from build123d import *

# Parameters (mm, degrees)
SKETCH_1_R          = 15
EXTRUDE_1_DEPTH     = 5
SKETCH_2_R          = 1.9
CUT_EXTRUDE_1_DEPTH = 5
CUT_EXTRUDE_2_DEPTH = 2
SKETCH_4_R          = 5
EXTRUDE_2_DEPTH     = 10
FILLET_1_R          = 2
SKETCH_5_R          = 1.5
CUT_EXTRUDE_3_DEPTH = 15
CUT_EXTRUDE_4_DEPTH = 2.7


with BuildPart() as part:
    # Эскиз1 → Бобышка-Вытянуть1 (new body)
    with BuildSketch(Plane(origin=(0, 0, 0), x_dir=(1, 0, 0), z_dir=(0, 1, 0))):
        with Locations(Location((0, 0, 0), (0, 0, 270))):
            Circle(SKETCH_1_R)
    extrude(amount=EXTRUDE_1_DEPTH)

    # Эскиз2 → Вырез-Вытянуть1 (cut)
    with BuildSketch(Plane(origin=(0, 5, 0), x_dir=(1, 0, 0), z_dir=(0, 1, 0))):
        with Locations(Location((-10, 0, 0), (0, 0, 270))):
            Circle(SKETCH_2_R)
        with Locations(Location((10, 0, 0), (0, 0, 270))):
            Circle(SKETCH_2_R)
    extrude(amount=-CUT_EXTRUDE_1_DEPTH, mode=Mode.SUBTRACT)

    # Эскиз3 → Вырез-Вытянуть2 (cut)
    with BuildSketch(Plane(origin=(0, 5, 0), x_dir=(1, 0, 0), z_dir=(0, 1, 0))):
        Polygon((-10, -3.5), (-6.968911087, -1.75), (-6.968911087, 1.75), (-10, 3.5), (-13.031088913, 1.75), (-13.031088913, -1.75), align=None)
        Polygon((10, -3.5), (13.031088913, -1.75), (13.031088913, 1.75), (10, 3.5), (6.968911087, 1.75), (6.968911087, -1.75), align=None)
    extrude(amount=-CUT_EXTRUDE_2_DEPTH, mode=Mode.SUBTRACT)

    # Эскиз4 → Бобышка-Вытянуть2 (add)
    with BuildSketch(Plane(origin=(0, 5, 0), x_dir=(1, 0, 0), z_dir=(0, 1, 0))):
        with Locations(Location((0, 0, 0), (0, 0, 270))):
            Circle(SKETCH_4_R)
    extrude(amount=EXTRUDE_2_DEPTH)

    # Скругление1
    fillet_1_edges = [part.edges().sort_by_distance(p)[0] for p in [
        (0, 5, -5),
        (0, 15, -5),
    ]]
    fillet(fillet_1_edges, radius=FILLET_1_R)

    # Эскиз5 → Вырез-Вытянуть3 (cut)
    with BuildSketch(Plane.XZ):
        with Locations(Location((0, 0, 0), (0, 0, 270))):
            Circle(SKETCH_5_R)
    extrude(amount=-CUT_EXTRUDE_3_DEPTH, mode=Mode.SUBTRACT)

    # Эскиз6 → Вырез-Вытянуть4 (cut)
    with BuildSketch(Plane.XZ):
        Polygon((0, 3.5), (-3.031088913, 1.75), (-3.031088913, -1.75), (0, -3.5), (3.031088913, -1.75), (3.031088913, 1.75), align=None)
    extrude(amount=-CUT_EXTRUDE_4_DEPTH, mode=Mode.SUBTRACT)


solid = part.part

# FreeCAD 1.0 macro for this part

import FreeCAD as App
import Part
import Sketcher
from FreeCAD import Vector
Q = App.Units.Quantity


def edges_at(feature, points):
    """Names of the edges that pass closest to the given points."""
    edges = feature.Shape.Edges
    near = lambda p: min(range(len(edges)), key=lambda i: edges[i].distToShape(Part.Vertex(*p))[0])
    return sorted({f"Edge{near(p) + 1}" for p in points})

doc = App.newDocument("Part")
body = doc.addObject("PartDesign::Body", "Body")

# Sketch on XZ plane
sketch1 = doc.addObject("Sketcher::SketchObject", "Sketch")
body.addObject(sketch1)
sketch1.AttachmentSupport = (doc.XZ_Plane, [""])
sketch1.MapMode = "FlatFace"
sketch1.addGeometry(Part.Circle(Vector(0, 0, 0), Vector(0, 0, 1), 15), False)
sketch1.addConstraint(Sketcher.Constraint("Coincident", 0, 3, -1, 1))
sketch1.addConstraint(Sketcher.Constraint("Diameter", 0, Q("30 mm")))
pad1 = doc.addObject("PartDesign::Pad", "Pad")
body.addObject(pad1)
pad1.Profile = sketch1
pad1.Length = 5
pad1.Reversed = True

# Sketch on XZ plane
sketch2 = doc.addObject("Sketcher::SketchObject", "Sketch001")
body.addObject(sketch2)
sketch2.AttachmentSupport = (doc.XZ_Plane, [""])
sketch2.MapMode = "FlatFace"
sketch2.AttachmentOffset = App.Placement(Vector(0, 0, -5), App.Rotation())
sketch2.addGeometry(Part.Circle(Vector(-10, 0, 0), Vector(0, 0, 1), 1.9), False)
sketch2.addGeometry(Part.Circle(Vector(10, 0, 0), Vector(0, 0, 1), 1.9), False)
sketch2.addConstraint(Sketcher.Constraint("Equal", 0, 1))
sketch2.addConstraint(Sketcher.Constraint("Symmetric", 0, 3, 1, 3, -1, 1))
sketch2.addConstraint(Sketcher.Constraint("PointOnObject", 0, 3, -1))
sketch2.addConstraint(Sketcher.Constraint("Diameter", 0, Q("3.8 mm")))
sketch2.addConstraint(Sketcher.Constraint("DistanceX", 0, 3, -1, 1, Q("10 mm")))
pocket1 = doc.addObject("PartDesign::Pocket", "Pocket")
body.addObject(pocket1)
pocket1.Profile = sketch2
pocket1.Length = 5
pocket1.Reversed = True

# Sketch on XZ plane
sketch3 = doc.addObject("Sketcher::SketchObject", "Sketch002")
body.addObject(sketch3)
sketch3.AttachmentSupport = (doc.XZ_Plane, [""])
sketch3.MapMode = "FlatFace"
sketch3.AttachmentOffset = App.Placement(Vector(0, 0, -5), App.Rotation())
sketch3.addGeometry(Part.LineSegment(Vector(-10, 3.5, 0), Vector(-7, 1.8, 0)), False)
sketch3.addGeometry(Part.LineSegment(Vector(-7, 1.8, 0), Vector(-7, -1.8, 0)), False)
sketch3.addGeometry(Part.LineSegment(Vector(-7, -1.8, 0), Vector(-10, -3.5, 0)), False)
sketch3.addGeometry(Part.LineSegment(Vector(-10, -3.5, 0), Vector(-13, -1.8, 0)), False)
sketch3.addGeometry(Part.LineSegment(Vector(-13, -1.8, 0), Vector(-13, 1.8, 0)), False)
sketch3.addGeometry(Part.LineSegment(Vector(-13, 1.8, 0), Vector(-10, 3.5, 0)), False)
sketch3.addGeometry(Part.LineSegment(Vector(10, 3.5, 0), Vector(13, 1.8, 0)), False)
sketch3.addGeometry(Part.LineSegment(Vector(13, 1.8, 0), Vector(13, -1.8, 0)), False)
sketch3.addGeometry(Part.LineSegment(Vector(13, -1.8, 0), Vector(10, -3.5, 0)), False)
sketch3.addGeometry(Part.LineSegment(Vector(10, -3.5, 0), Vector(7, -1.8, 0)), False)
sketch3.addGeometry(Part.LineSegment(Vector(7, -1.8, 0), Vector(7, 1.8, 0)), False)
sketch3.addGeometry(Part.LineSegment(Vector(7, 1.8, 0), Vector(10, 3.5, 0)), False)
sketch3.addConstraint(Sketcher.Constraint("Coincident", 0, 2, 1, 1))
sketch3.addConstraint(Sketcher.Constraint("Coincident", 1, 2, 2, 1))
sketch3.addConstraint(Sketcher.Constraint("Coincident", 2, 2, 3, 1))
sketch3.addConstraint(Sketcher.Constraint("Coincident", 3, 2, 4, 1))
sketch3.addConstraint(Sketcher.Constraint("Coincident", 4, 2, 5, 1))
sketch3.addConstraint(Sketcher.Constraint("Coincident", 5, 2, 0, 1))
sketch3.addConstraint(Sketcher.Constraint("Coincident", 6, 2, 7, 1))
sketch3.addConstraint(Sketcher.Constraint("Coincident", 7, 2, 8, 1))
sketch3.addConstraint(Sketcher.Constraint("Coincident", 8, 2, 9, 1))
sketch3.addConstraint(Sketcher.Constraint("Coincident", 9, 2, 10, 1))
sketch3.addConstraint(Sketcher.Constraint("Coincident", 10, 2, 11, 1))
sketch3.addConstraint(Sketcher.Constraint("Coincident", 11, 2, 6, 1))
sketch3.addConstraint(Sketcher.Constraint("Vertical", 1))
sketch3.addConstraint(Sketcher.Constraint("Vertical", 4))
sketch3.addConstraint(Sketcher.Constraint("Vertical", 7))
sketch3.addConstraint(Sketcher.Constraint("Vertical", 10))
sketch3.addConstraint(Sketcher.Constraint("Symmetric", 3, 2, 6, 2, -1, 1))
sketch3.addConstraint(Sketcher.Constraint("Symmetric", 5, 2, 8, 2, -1, 1))
sketch3.addConstraint(Sketcher.Constraint("Symmetric", 0, 2, 9, 2, -1, 1))
sketch3.addConstraint(Sketcher.Constraint("Symmetric", 2, 2, 11, 2, -1, 1))
sketch3.addConstraint(Sketcher.Constraint("Symmetric", 2, 2, 8, 2, -2))
sketch3.addConstraint(Sketcher.Constraint("Parallel", 0, 3))
sketch3.addConstraint(Sketcher.Constraint("Parallel", 2, 5))
sketch3.addConstraint(Sketcher.Constraint("Parallel", 5, 8))
sketch3.addConstraint(Sketcher.Constraint("Parallel", 8, 11))
sketch3.addConstraint(Sketcher.Constraint("Horizontal", 1, 2, 3, 2))
sketch3.addConstraint(Sketcher.Constraint("Horizontal", 0, 2, 4, 2))
sketch3.addConstraint(Sketcher.Constraint("Angle", 0, Q("-30 deg")))
sketch3.addConstraint(Sketcher.Constraint("DistanceY", 1, 2, 1, 1, Q("3.5 mm")))
sketch3.addConstraint(Sketcher.Constraint("DistanceX", 2, 2, -1, 1, Q("10 mm")))
sketch3.addConstraint(Sketcher.Constraint("DistanceY", 2, 2, 5, 2, Q("7 mm")))
pocket2 = doc.addObject("PartDesign::Pocket", "Pocket001")
body.addObject(pocket2)
pocket2.Profile = sketch3
pocket2.Length = 2
pocket2.Reversed = True

# Sketch on XZ plane
sketch4 = doc.addObject("Sketcher::SketchObject", "Sketch003")
body.addObject(sketch4)
sketch4.AttachmentSupport = (doc.XZ_Plane, [""])
sketch4.MapMode = "FlatFace"
sketch4.AttachmentOffset = App.Placement(Vector(0, 0, -5), App.Rotation())
sketch4.addGeometry(Part.Circle(Vector(0, 0, 0), Vector(0, 0, 1), 5), False)
sketch4.addConstraint(Sketcher.Constraint("Coincident", 0, 3, -1, 1))
sketch4.addConstraint(Sketcher.Constraint("Diameter", 0, Q("10 mm")))
pad2 = doc.addObject("PartDesign::Pad", "Pad001")
body.addObject(pad2)
pad2.Profile = sketch4
pad2.Length = 10
pad2.Reversed = True
doc.recompute()

fillet = doc.addObject("PartDesign::Fillet", "Fillet")
body.addObject(fillet)
fillet.Base = (pad2, edges_at(pad2, [(0, 5, -5), (0, 15, -5)]))
fillet.Radius = 2

# Sketch on XZ plane
sketch5 = doc.addObject("Sketcher::SketchObject", "Sketch004")
body.addObject(sketch5)
sketch5.AttachmentSupport = (doc.XZ_Plane, [""])
sketch5.MapMode = "FlatFace"
sketch5.addGeometry(Part.Circle(Vector(0, 0, 0), Vector(0, 0, 1), 1.5), False)
sketch5.addConstraint(Sketcher.Constraint("Coincident", 0, 3, -1, 1))
sketch5.addConstraint(Sketcher.Constraint("Diameter", 0, Q("3 mm")))
pocket3 = doc.addObject("PartDesign::Pocket", "Pocket002")
body.addObject(pocket3)
pocket3.Profile = sketch5
pocket3.Length = 15

# Sketch on XZ plane
sketch6 = doc.addObject("Sketcher::SketchObject", "Sketch005")
body.addObject(sketch6)
sketch6.AttachmentSupport = (doc.XZ_Plane, [""])
sketch6.MapMode = "FlatFace"
sketch6.addGeometry(Part.LineSegment(Vector(0, 3.5, 0), Vector(-3, 1.8, 0)), False)
sketch6.addGeometry(Part.LineSegment(Vector(-3, 1.8, 0), Vector(-3, -1.8, 0)), False)
sketch6.addGeometry(Part.LineSegment(Vector(-3, -1.8, 0), Vector(0, -3.5, 0)), False)
sketch6.addGeometry(Part.LineSegment(Vector(0, -3.5, 0), Vector(3, -1.8, 0)), False)
sketch6.addGeometry(Part.LineSegment(Vector(3, -1.8, 0), Vector(3, 1.8, 0)), False)
sketch6.addGeometry(Part.LineSegment(Vector(3, 1.8, 0), Vector(0, 3.5, 0)), False)
sketch6.addConstraint(Sketcher.Constraint("Coincident", 0, 2, 1, 1))
sketch6.addConstraint(Sketcher.Constraint("Coincident", 1, 2, 2, 1))
sketch6.addConstraint(Sketcher.Constraint("Coincident", 2, 2, 3, 1))
sketch6.addConstraint(Sketcher.Constraint("Coincident", 3, 2, 4, 1))
sketch6.addConstraint(Sketcher.Constraint("Coincident", 4, 2, 5, 1))
sketch6.addConstraint(Sketcher.Constraint("Coincident", 5, 2, 0, 1))
sketch6.addConstraint(Sketcher.Constraint("Vertical", 1))
sketch6.addConstraint(Sketcher.Constraint("Vertical", 4))
sketch6.addConstraint(Sketcher.Constraint("Symmetric", 0, 2, 3, 2, -1, 1))
sketch6.addConstraint(Sketcher.Constraint("Symmetric", 2, 2, 5, 2, -1, 1))
sketch6.addConstraint(Sketcher.Constraint("PointOnObject", 2, 2, -2))
sketch6.addConstraint(Sketcher.Constraint("Parallel", 2, 5))
sketch6.addConstraint(Sketcher.Constraint("Horizontal", 1, 2, 3, 2))
sketch6.addConstraint(Sketcher.Constraint("Angle", 0, Q("-150 deg")))
sketch6.addConstraint(Sketcher.Constraint("DistanceY", 1, 2, 1, 1, Q("3.5 mm")))
sketch6.addConstraint(Sketcher.Constraint("DistanceY", 2, 2, 5, 2, Q("7 mm")))
pocket4 = doc.addObject("PartDesign::Pocket", "Pocket003")
body.addObject(pocket4)
pocket4.Profile = sketch6
pocket4.Length = 2.7

doc.recompute()
